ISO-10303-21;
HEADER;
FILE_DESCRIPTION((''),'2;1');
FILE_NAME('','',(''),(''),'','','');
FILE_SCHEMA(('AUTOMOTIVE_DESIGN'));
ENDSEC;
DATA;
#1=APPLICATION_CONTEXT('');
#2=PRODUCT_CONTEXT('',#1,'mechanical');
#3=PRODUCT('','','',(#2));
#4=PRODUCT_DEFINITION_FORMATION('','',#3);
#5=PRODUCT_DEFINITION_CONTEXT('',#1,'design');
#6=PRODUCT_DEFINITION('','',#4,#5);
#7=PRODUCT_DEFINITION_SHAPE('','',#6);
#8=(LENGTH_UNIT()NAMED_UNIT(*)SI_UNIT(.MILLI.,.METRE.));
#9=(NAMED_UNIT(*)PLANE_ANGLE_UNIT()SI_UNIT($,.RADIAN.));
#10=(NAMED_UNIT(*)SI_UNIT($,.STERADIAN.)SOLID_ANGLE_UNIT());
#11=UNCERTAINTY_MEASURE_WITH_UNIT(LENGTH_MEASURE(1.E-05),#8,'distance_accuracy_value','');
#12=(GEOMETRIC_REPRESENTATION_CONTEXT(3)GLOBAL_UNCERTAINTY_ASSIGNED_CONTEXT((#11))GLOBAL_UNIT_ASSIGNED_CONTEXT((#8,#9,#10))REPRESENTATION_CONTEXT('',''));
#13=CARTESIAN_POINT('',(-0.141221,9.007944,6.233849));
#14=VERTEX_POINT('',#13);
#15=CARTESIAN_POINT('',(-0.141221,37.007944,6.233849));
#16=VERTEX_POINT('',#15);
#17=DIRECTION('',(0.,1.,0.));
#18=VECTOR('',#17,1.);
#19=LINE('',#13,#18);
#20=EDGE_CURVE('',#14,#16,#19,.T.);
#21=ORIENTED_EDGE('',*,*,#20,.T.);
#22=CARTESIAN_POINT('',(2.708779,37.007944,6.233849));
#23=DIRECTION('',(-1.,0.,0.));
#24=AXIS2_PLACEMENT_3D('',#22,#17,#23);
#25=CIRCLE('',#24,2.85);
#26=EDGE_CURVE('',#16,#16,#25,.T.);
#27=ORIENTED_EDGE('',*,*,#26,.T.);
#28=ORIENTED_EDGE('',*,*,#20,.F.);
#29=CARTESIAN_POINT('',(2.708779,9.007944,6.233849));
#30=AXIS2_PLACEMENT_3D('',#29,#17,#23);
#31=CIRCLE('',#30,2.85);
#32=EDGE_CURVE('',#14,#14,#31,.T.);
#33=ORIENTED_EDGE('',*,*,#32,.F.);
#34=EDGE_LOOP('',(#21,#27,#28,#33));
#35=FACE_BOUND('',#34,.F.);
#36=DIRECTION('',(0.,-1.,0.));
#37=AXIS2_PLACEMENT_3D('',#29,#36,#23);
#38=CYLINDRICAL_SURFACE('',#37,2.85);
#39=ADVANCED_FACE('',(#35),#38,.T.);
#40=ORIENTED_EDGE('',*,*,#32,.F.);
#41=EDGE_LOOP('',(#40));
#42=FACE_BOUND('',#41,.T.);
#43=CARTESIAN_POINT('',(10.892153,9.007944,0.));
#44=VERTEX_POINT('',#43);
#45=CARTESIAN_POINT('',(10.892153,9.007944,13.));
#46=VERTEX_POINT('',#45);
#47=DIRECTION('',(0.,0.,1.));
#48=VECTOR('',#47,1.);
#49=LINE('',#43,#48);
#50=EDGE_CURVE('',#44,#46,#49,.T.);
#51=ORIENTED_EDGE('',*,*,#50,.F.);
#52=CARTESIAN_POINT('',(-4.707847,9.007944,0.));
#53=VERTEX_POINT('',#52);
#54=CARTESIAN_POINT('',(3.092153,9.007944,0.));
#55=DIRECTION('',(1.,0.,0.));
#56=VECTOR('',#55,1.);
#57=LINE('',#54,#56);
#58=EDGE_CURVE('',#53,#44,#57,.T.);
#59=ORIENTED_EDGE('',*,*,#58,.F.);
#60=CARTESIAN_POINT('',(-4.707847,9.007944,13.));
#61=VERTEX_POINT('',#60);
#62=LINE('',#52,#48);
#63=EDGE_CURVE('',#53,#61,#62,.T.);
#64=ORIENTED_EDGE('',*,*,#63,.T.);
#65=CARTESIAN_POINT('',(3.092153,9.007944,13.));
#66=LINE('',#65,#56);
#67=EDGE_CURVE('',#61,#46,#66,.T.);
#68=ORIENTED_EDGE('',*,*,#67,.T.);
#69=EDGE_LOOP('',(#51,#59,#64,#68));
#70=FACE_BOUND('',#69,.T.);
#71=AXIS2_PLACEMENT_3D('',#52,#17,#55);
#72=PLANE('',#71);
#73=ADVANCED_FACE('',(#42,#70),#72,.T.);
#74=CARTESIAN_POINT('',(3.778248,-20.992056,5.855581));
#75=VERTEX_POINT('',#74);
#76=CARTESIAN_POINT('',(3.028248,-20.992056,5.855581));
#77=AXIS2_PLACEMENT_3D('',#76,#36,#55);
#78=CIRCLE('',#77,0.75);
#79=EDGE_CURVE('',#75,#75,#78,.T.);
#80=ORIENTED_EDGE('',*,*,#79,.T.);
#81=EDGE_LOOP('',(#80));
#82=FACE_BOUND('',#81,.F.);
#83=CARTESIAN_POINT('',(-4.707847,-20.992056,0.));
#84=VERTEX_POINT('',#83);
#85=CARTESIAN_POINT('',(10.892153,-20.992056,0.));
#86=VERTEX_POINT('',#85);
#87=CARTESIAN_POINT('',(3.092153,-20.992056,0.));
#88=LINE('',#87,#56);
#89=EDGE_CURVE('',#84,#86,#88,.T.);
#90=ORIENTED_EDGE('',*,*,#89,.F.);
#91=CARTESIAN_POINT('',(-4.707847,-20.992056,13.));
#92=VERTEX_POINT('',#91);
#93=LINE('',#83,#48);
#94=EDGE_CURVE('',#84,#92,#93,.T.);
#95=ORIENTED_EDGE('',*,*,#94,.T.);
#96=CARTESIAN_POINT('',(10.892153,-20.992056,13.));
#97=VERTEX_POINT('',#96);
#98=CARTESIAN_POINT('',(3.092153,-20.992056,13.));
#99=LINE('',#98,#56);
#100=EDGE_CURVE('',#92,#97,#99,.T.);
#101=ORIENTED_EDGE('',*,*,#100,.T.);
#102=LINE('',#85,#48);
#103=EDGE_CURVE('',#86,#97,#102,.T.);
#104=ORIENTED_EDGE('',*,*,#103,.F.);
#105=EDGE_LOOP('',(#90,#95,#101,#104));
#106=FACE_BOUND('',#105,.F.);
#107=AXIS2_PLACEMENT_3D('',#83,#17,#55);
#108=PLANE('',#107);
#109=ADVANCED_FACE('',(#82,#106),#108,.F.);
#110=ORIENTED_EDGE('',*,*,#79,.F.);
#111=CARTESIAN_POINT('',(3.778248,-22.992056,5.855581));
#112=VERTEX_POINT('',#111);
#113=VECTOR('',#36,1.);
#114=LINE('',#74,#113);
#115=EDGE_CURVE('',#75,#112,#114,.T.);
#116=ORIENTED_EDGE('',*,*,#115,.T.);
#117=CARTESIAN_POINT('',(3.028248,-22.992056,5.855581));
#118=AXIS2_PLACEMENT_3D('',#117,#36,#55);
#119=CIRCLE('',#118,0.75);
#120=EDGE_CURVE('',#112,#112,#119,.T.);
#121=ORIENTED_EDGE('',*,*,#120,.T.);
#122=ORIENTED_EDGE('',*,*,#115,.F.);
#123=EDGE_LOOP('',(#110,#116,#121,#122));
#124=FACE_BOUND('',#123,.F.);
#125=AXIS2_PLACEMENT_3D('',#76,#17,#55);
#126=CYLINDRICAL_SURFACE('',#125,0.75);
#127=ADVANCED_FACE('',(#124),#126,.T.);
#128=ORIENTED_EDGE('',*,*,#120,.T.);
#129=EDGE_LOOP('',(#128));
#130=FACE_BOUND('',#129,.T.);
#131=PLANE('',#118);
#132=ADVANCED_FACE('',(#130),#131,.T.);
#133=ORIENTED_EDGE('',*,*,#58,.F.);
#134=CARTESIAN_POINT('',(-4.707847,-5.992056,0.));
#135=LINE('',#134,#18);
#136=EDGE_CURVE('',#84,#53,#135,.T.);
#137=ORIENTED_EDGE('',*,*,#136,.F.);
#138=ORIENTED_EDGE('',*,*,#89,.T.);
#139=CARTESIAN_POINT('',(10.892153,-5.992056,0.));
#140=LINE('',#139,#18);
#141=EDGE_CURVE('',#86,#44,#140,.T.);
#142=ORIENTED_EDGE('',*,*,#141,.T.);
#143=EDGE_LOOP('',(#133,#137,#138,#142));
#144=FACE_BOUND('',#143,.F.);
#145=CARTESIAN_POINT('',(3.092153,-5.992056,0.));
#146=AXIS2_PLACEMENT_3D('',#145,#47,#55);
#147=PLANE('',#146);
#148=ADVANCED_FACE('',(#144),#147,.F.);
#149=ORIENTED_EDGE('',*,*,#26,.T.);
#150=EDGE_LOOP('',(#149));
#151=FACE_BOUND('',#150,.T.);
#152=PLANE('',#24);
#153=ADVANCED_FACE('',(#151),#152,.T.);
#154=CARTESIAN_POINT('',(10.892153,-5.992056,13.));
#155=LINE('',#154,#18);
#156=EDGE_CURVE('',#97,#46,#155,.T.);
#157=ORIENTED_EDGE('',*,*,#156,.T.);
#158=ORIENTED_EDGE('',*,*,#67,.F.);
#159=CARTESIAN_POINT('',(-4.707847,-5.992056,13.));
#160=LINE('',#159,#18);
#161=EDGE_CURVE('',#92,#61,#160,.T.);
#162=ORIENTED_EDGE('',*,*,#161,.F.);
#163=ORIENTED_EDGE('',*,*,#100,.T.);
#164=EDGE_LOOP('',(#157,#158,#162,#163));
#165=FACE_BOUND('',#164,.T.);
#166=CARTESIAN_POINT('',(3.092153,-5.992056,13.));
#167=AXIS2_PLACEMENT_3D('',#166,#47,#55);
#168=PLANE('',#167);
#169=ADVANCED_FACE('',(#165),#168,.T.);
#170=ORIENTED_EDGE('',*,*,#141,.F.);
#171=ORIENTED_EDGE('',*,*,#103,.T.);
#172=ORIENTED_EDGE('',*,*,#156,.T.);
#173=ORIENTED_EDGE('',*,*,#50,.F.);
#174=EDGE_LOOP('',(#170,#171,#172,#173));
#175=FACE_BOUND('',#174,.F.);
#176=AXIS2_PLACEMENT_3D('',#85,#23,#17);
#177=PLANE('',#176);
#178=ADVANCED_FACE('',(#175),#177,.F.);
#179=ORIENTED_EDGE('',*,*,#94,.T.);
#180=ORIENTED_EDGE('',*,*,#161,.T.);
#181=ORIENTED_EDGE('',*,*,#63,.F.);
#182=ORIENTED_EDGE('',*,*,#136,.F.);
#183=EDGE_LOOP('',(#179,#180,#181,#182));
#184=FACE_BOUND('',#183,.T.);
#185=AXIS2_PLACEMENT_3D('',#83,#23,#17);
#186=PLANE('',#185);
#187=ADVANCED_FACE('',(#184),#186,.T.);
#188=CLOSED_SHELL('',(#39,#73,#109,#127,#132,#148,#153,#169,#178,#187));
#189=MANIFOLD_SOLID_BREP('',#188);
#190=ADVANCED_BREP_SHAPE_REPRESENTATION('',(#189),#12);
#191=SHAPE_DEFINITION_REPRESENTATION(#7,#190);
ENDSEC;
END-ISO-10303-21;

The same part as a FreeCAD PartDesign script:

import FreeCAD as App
import Part
import Sketcher

V = App.Vector
Q = App.Units.Quantity


def add_polygon(sketch, points):
    """Adds a closed chain of lines whose ends are joined by coincident constraints."""
    first, n = sketch.GeometryCount, len(points)
    for a, b in zip(points, points[1:] + points[:1]):
        sketch.addGeometry(Part.LineSegment(App.Vector(*a, 0), App.Vector(*b, 0)), False)
    for i in range(n):
        sketch.addConstraint(Sketcher.Constraint("Coincident", first + i, 2, first + (i + 1) % n, 1))

doc = App.newDocument("Part")
params = doc.addObject("Spreadsheet::Sheet", "Params")
for row, (alias, value) in enumerate([
    ("sketch1_height", "30 mm"),
    ("sketch1_width", "15.6 mm"),
    ("pad1_length", "13 mm"),
    ("sketch2_diameter", "5.7 mm"),
    ("pad2_length", "28 mm"),
    ("sketch3_diameter", "1.5 mm"),
    ("pad3_length", "2 mm"),
], start=1):
    params.set(f"A{row}", alias)
    params.set(f"B{row}", "=" + value)
    params.setAlias(f"B{row}", alias)

body = doc.addObject("PartDesign::Body", "Body")

# Sketch on XY plane
sketch1 = doc.addObject("Sketcher::SketchObject", "Sketch")
body.addObject(sketch1)
sketch1.AttachmentSupport = (doc.XY_Plane, [""])
sketch1.MapMode = "FlatFace"
add_polygon(sketch1, [(-5, 9), (-5, -21), (11, -21), (11, 9)])  # lines 0-3
sketch1.addConstraint([
    Sketcher.Constraint("Vertical", 0),
    Sketcher.Constraint("Horizontal", 1),
    Sketcher.Constraint("Vertical", 2),
    Sketcher.Constraint("Horizontal", 3),
    Sketcher.Constraint("DistanceY", 0, 2, 0, 1, Q("30 mm")),
    Sketcher.Constraint("DistanceX", 1, 1, 1, 2, Q("15.6 mm")),
    Sketcher.Constraint("DistanceX", 0, 2, -1, 1, Q("4.707847 mm")),
    Sketcher.Constraint("DistanceY", 0, 2, -1, 1, Q("20.992056 mm")),
])
sketch1.setExpression("Constraints[8]", "Params.sketch1_height")
sketch1.setExpression("Constraints[9]", "Params.sketch1_width")
pad1 = doc.addObject("PartDesign::Pad", "Pad")
body.addObject(pad1)
pad1.Profile = sketch1
pad1.setExpression("Length", "Params.pad1_length")

# Sketch on XZ plane
sketch2 = doc.addObject("Sketcher::SketchObject", "Sketch001")
body.addObject(sketch2)
sketch2.AttachmentSupport = (doc.XZ_Plane, [""])
sketch2.MapMode = "FlatFace"
sketch2.AttachmentOffset = App.Placement(V(0, 0, -9.007944), App.Rotation())
sketch2.addGeometry(Part.Circle(V(2.7, 6.2, 0), V(0, 0, 1), 2.9), False)
sketch2.addConstraint([
    Sketcher.Constraint("Diameter", 0, Q("5.7 mm")),
    Sketcher.Constraint("DistanceX", -1, 1, 0, 3, Q("2.708779 mm")),
    Sketcher.Constraint("DistanceY", -1, 1, 0, 3, Q("6.233849 mm")),
])
sketch2.setExpression("Constraints[0]", "Params.sketch2_diameter")
pad2 = doc.addObject("PartDesign::Pad", "Pad001")
body.addObject(pad2)
pad2.Profile = sketch2
pad2.setExpression("Length", "Params.pad2_length")
pad2.Reversed = True

# Sketch on XZ plane
sketch3 = doc.addObject("Sketcher::SketchObject", "Sketch002")
body.addObject(sketch3)
sketch3.AttachmentSupport = (doc.XZ_Plane, [""])
sketch3.MapMode = "FlatFace"
sketch3.AttachmentOffset = App.Placement(V(0, 0, 20.992056), App.Rotation())
sketch3.addGeometry(Part.Circle(V(3, 5.9, 0), V(0, 0, 1), 0.8), False)
sketch3.addConstraint([
    Sketcher.Constraint("Diameter", 0, Q("1.5 mm")),
    Sketcher.Constraint("DistanceX", -1, 1, 0, 3, Q("3.028248 mm")),
    Sketcher.Constraint("DistanceY", -1, 1, 0, 3, Q("5.855581 mm")),
])
sketch3.setExpression("Constraints[0]", "Params.sketch3_diameter")
pad3 = doc.addObject("PartDesign::Pad", "Pad002")
body.addObject(pad3)
pad3.Profile = sketch3
pad3.setExpression("Length", "Params.pad3_length")

doc.recompute()
